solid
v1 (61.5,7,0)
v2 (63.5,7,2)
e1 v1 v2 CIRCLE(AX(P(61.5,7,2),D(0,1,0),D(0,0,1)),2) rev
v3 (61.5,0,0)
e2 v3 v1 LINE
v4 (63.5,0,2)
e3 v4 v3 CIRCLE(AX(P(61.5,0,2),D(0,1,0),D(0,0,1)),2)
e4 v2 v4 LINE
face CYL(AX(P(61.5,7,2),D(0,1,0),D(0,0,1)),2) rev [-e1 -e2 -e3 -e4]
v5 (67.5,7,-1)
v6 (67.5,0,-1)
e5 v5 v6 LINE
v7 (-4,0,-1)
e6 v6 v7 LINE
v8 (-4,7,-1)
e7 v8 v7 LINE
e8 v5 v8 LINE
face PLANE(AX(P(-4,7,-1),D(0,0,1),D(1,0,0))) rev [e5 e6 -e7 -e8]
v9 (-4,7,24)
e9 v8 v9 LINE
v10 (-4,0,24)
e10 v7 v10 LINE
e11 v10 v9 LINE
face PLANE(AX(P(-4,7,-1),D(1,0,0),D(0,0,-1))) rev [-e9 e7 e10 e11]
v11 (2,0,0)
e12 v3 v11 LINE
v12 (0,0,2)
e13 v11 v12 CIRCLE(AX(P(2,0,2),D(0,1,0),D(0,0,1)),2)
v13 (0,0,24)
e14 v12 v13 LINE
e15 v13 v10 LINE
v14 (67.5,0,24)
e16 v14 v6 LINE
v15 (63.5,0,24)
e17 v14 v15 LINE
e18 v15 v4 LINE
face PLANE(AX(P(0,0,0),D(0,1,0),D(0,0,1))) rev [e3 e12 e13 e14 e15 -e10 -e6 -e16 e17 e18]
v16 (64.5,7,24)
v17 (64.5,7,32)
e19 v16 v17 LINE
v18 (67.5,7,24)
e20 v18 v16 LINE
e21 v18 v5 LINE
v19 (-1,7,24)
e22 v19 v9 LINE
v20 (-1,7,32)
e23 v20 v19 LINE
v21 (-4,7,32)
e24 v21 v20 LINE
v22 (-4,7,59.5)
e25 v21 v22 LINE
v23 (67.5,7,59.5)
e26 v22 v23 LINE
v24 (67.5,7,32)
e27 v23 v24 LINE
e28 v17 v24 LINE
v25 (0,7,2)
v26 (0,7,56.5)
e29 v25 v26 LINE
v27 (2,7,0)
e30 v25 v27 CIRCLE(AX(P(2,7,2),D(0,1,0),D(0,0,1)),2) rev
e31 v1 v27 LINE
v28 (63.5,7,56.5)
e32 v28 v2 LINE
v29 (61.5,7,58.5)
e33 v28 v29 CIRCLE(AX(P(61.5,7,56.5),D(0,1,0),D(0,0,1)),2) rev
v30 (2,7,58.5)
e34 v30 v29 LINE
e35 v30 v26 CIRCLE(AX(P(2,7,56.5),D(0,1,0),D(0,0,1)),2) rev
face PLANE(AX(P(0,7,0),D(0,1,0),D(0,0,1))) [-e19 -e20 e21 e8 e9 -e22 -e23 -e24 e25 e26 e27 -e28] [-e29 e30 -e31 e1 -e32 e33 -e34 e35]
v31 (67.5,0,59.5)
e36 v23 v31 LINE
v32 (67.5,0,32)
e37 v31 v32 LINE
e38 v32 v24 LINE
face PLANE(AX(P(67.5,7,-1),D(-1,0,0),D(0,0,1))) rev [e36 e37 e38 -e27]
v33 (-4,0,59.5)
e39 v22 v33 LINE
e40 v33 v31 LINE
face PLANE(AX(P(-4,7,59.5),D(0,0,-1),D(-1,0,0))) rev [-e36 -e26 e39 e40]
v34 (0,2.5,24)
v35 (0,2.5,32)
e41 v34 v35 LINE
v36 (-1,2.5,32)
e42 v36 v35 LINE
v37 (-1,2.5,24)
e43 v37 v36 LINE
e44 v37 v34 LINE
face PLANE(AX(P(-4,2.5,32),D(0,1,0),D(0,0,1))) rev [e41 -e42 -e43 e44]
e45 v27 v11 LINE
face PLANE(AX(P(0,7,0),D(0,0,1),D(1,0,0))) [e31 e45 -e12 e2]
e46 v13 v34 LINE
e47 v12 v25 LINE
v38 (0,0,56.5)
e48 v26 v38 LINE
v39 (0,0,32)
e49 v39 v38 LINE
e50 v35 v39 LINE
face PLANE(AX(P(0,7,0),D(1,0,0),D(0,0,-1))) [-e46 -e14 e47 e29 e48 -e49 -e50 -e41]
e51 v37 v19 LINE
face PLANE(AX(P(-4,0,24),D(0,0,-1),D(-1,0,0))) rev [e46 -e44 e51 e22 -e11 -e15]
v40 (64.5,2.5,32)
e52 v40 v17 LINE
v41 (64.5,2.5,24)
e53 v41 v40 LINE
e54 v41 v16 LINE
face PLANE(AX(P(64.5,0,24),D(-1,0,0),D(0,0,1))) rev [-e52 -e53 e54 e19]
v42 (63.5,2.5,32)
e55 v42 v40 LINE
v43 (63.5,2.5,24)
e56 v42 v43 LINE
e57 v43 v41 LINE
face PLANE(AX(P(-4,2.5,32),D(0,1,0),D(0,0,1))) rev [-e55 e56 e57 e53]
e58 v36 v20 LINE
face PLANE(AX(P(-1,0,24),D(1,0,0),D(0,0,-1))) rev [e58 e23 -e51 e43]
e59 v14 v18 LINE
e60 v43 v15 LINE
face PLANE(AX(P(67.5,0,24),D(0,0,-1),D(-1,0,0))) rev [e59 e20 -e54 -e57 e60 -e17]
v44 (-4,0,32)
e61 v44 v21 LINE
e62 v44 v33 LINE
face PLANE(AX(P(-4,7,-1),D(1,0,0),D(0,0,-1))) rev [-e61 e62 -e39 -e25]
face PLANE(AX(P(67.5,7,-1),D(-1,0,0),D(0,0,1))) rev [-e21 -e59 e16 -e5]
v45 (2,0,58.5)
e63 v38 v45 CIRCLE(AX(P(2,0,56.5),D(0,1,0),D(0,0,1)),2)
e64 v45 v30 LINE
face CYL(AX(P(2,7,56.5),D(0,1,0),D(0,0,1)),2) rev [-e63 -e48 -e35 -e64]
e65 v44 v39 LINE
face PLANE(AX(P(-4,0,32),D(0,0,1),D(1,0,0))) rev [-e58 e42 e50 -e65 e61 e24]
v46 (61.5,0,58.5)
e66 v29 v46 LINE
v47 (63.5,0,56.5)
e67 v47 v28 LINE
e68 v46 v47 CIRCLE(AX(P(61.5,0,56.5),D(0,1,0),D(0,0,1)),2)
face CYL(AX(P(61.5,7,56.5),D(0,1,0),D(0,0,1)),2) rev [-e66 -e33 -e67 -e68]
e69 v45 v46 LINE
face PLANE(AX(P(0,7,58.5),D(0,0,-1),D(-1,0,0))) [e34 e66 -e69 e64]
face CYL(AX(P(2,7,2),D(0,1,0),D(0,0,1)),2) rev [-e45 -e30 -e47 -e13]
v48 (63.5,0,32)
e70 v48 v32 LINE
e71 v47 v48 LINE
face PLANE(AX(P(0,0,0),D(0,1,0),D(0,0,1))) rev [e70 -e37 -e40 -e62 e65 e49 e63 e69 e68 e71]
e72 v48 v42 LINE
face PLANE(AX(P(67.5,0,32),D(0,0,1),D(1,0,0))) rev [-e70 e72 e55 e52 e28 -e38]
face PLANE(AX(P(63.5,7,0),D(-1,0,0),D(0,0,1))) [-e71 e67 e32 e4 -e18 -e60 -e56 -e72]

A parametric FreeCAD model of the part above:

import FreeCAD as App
import Part
import Sketcher
from FreeCAD import Vector
Q = App.Units.Quantity


def edges_at(feature, points):
    """Names of the edges that pass closest to the given points."""
    edges = feature.Shape.Edges
    near = lambda p: min(range(len(edges)), key=lambda i: edges[i].distToShape(Part.Vertex(*p))[0])
    return sorted({f"Edge{near(p) + 1}" for p in points})


def add_polygon(sketch, points):
    """Adds a closed chain of lines whose ends are joined by coincident constraints."""
    first, n = sketch.GeometryCount, len(points)
    for a, b in zip(points, points[1:] + points[:1]):
        sketch.addGeometry(Part.LineSegment(App.Vector(*a, 0), App.Vector(*b, 0)), False)
    for i in range(n):
        sketch.addConstraint(Sketcher.Constraint("Coincident", first + i, 2, first + (i + 1) % n, 1))

doc = App.newDocument("Part")
body = doc.addObject("PartDesign::Body", "Body")

# Sketch on XZ plane
sketch1 = doc.addObject("Sketcher::SketchObject", "Sketch")
body.addObject(sketch1)
sketch1.AttachmentSupport = (doc.XZ_Plane, [""])
sketch1.MapMode = "FlatFace"
add_polygon(sketch1, [(-4, -1), (-4, 60), (68, 60), (68, -1)])  # lines 0-3
add_polygon(sketch1, [(64, 58), (0, 58), (0, 0), (64, 0)])  # lines 4-7
sketch1.addConstraint(Sketcher.Constraint("Vertical", 0))
sketch1.addConstraint(Sketcher.Constraint("Horizontal", 1))
sketch1.addConstraint(Sketcher.Constraint("Vertical", 2))
sketch1.addConstraint(Sketcher.Constraint("Horizontal", 3))
sketch1.addConstraint(Sketcher.Constraint("Horizontal", 4))
sketch1.addConstraint(Sketcher.Constraint("Vertical", 5))
sketch1.addConstraint(Sketcher.Constraint("Horizontal", 6))
sketch1.addConstraint(Sketcher.Constraint("Vertical", 7))
sketch1.addConstraint(Sketcher.Constraint("Coincident", 5, 2, -1, 1))
sketch1.addConstraint(Sketcher.Constraint("DistanceX", 1, 1, 1, 2, Q("71.5 mm")))
sketch1.addConstraint(Sketcher.Constraint("DistanceX", 4, 2, 4, 1, Q("63.5 mm")))
sketch1.addConstraint(Sketcher.Constraint("DistanceY", 0, 1, 0, 2, Q("60.5 mm")))
sketch1.addConstraint(Sketcher.Constraint("DistanceY", 5, 2, 5, 1, Q("58.5 mm")))
sketch1.addConstraint(Sketcher.Constraint("DistanceX", 0, 2, -1, 1, Q("4 mm")))
sketch1.addConstraint(Sketcher.Constraint("DistanceY", 2, 2, -1, 1, Q("1 mm")))
pad1 = doc.addObject("PartDesign::Pad", "Pad")
body.addObject(pad1)
pad1.Profile = sketch1
pad1.Length = 7
pad1.Reversed = True
doc.recompute()

fillet = doc.addObject("PartDesign::Fillet", "Fillet")
body.addObject(fillet)
fillet.Base = (pad1, edges_at(pad1, [
    (0, 3.5, 0),
    (0, 3.5, 58.5),
    (63.5, 3.5, 58.5),
    (63.5, 3.5, 0),
]))
fillet.Radius = 2

# Sketch on XZ plane
sketch2 = doc.addObject("Sketcher::SketchObject", "Sketch001")
body.addObject(sketch2)
sketch2.AttachmentSupport = (doc.XZ_Plane, [""])
sketch2.MapMode = "FlatFace"
sketch2.AttachmentOffset = App.Placement(Vector(0, 0, -7), App.Rotation())
add_polygon(sketch2, [(-4, 24), (-4, 32), (-1, 32), (-1, 24)])  # lines 0-3
add_polygon(sketch2, [(64.5, 24), (64.5, 32), (67.5, 32), (67.5, 24)])  # lines 4-7
sketch2.addConstraint(Sketcher.Constraint("Vertical", 0))
sketch2.addConstraint(Sketcher.Constraint("Horizontal", 1))
sketch2.addConstraint(Sketcher.Constraint("Vertical", 2))
sketch2.addConstraint(Sketcher.Constraint("Horizontal", 3))
sketch2.addConstraint(Sketcher.Constraint("Vertical", 4))
sketch2.addConstraint(Sketcher.Constraint("Horizontal", 5))
sketch2.addConstraint(Sketcher.Constraint("Vertical", 6))
sketch2.addConstraint(Sketcher.Constraint("Horizontal", 7))
sketch2.addConstraint(Sketcher.Constraint("Horizontal", 1, 2, 4, 2))
sketch2.addConstraint(Sketcher.Constraint("Horizontal", 3, 2, 6, 2))
sketch2.addConstraint(Sketcher.Constraint("Equal", 3, 5))
sketch2.addConstraint(Sketcher.Constraint("DistanceX", 1, 1, 1, 2, Q("3 mm")))
sketch2.addConstraint(Sketcher.Constraint("DistanceY", 0, 1, 0, 2, Q("8 mm")))
sketch2.addConstraint(Sketcher.Constraint("DistanceX", 0, 2, -1, 1, Q("4 mm")))
sketch2.addConstraint(Sketcher.Constraint("DistanceY", -1, 1, 0, 2, Q("32 mm")))
sketch2.addConstraint(Sketcher.Constraint("DistanceX", -1, 1, 4, 2, Q("64.5 mm")))
pocket1 = doc.addObject("PartDesign::Pocket", "Pocket")
body.addObject(pocket1)
pocket1.Profile = sketch2
pocket1.Length = 7
pocket1.Reversed = True

# Sketch on YZ plane
sketch3 = doc.addObject("Sketcher::SketchObject", "Sketch002")
body.addObject(sketch3)
sketch3.AttachmentSupport = (doc.YZ_Plane, [""])
sketch3.MapMode = "FlatFace"
sketch3.AttachmentOffset = App.Placement(Vector(0, 0, 64.5), App.Rotation())
add_polygon(sketch3, [(2.5, 32), (0, 32), (0, 24), (2.5, 24)])  # lines 0-3
sketch3.addConstraint(Sketcher.Constraint("Horizontal", 0))
sketch3.addConstraint(Sketcher.Constraint("Vertical", 1))
sketch3.addConstraint(Sketcher.Constraint("Horizontal", 2))
sketch3.addConstraint(Sketcher.Constraint("Vertical", 3))
sketch3.addConstraint(Sketcher.Constraint("PointOnObject", 0, 2, -2))
sketch3.addConstraint(Sketcher.Constraint("DistanceY", 1, 2, 1, 1, Q("8 mm")))
sketch3.addConstraint(Sketcher.Constraint("DistanceX", 0, 2, 0, 1, Q("2.5 mm")))
sketch3.addConstraint(Sketcher.Constraint("DistanceY", -1, 1, 0, 2, Q("32 mm")))
pocket2 = doc.addObject("PartDesign::Pocket", "Pocket001")
body.addObject(pocket2)
pocket2.Profile = sketch3
pocket2.Type = "ThroughAll"

doc.recompute()
